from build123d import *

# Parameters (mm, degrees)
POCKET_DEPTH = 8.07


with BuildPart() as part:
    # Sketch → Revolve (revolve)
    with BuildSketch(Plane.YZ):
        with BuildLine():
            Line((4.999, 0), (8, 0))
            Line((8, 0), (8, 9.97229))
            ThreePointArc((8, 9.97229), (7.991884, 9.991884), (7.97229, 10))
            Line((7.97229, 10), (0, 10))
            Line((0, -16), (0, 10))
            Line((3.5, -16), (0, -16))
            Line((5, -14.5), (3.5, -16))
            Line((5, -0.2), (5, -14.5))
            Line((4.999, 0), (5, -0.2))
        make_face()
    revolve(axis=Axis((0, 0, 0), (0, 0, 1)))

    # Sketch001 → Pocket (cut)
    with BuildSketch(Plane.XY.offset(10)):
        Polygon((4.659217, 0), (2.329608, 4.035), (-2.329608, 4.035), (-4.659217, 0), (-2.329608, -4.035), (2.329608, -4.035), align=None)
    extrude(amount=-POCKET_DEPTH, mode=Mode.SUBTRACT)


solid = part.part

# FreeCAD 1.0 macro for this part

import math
import FreeCAD as App
import Part
import Sketcher
Q = App.Units.Quantity

doc = App.newDocument("Part")
body = doc.addObject("PartDesign::Body", "Body")

# Sketch on YZ plane
sketch1 = body.newObject("Sketcher::SketchObject", "Sketch")
sketch1.AttachmentSupport = (doc.getObject("YZ_Plane"), [""])
sketch1.MapMode = "FlatFace"
sketch1.addGeometry(Part.LineSegment(App.Vector(4.999, 0, 0), App.Vector(8, 0, 0)), False)
sketch1.addGeometry(Part.LineSegment(App.Vector(8, 0, 0), App.Vector(8, 9.972, 0)), False)
sketch1.addGeometry(Part.ArcOfCircle(Part.Circle(App.Vector(7.972, 9.972, 0), App.Vector(0, 0, 1), 0.028), math.radians(0), math.radians(90)), False)
sketch1.addGeometry(Part.LineSegment(App.Vector(7.972, 10, 0), App.Vector(0, 10, 0)), False)
sketch1.addGeometry(Part.LineSegment(App.Vector(0, 10, 0), App.Vector(0, -16, 0)), False)
sketch1.addGeometry(Part.LineSegment(App.Vector(0, -16, 0), App.Vector(3.5, -16, 0)), False)
sketch1.addGeometry(Part.LineSegment(App.Vector(3.5, -16, 0), App.Vector(5, -14.5, 0)), False)
sketch1.addGeometry(Part.LineSegment(App.Vector(5, -14.5, 0), App.Vector(5, -0.2, 0)), False)
sketch1.addGeometry(Part.LineSegment(App.Vector(5, -0.2, 0), App.Vector(4.999, 0, 0)), False)
sketch1.addConstraint(Sketcher.Constraint("Coincident", 0, 2, 1, 1))
sketch1.addConstraint(Sketcher.Constraint("Coincident", 1, 2, 2, 1))
sketch1.addConstraint(Sketcher.Constraint("Coincident", 2, 2, 3, 1))
sketch1.addConstraint(Sketcher.Constraint("Coincident", 3, 2, 4, 1))
sketch1.addConstraint(Sketcher.Constraint("Coincident", 4, 2, 5, 1))
sketch1.addConstraint(Sketcher.Constraint("Coincident", 5, 2, 6, 1))
sketch1.addConstraint(Sketcher.Constraint("Coincident", 6, 2, 7, 1))
sketch1.addConstraint(Sketcher.Constraint("Coincident", 7, 2, 8, 1))
sketch1.addConstraint(Sketcher.Constraint("Coincident", 8, 2, 0, 1))
sketch1.addConstraint(Sketcher.Constraint("Horizontal", 0))
sketch1.addConstraint(Sketcher.Constraint("Vertical", 1))
sketch1.addConstraint(Sketcher.Constraint("Horizontal", 3))
sketch1.addConstraint(Sketcher.Constraint("Vertical", 4))
sketch1.addConstraint(Sketcher.Constraint("Horizontal", 5))
sketch1.addConstraint(Sketcher.Constraint("Vertical", 7))
sketch1.addConstraint(Sketcher.Constraint("PointOnObject", 0, 2, -1))
sketch1.addConstraint(Sketcher.Constraint("PointOnObject", 3, 2, -2))
sketch1.addConstraint(Sketcher.Constraint("Horizontal", 2, 3, 1, 2))
sketch1.addConstraint(Sketcher.Constraint("DistanceY", 4, 2, 4, 1, 26.0))
sketch1.addConstraint(Sketcher.Constraint("Angle", 6, Q("45 deg")))
sketch1.addConstraint(Sketcher.Constraint("DistanceX", 5, 1, 5, 2, 3.5))
sketch1.addConstraint(Sketcher.Constraint("DistanceY", 7, 1, 7, 2, 14.3))
sketch1.addConstraint(Sketcher.Constraint("DistanceX", -1, 1, 0, 2, 8.0))
sketch1.addConstraint(Sketcher.Constraint("DistanceY", -1, 1, 2, 2, 10.0))
sketch1.addConstraint(Sketcher.Constraint("DistanceX", -1, 1, 6, 2, 5.0))
sketch1.addConstraint(Sketcher.Constraint("DistanceX", 0, 1, 0, 2, 3.001))
sketch1.addConstraint(Sketcher.Constraint("Radius", 2, 0.02771))
sketch1.addConstraint(Sketcher.Constraint("DistanceX", 3, 2, 3, 1, 7.97229))
revolution = body.newObject("PartDesign::Revolution", "Revolution")
revolution.Profile = sketch1
revolution.ReferenceAxis = (sketch1, ["V_Axis"])
revolution.Angle = 360

# Sketch on XY plane
sketch2 = body.newObject("Sketcher::SketchObject", "Sketch001")
sketch2.AttachmentSupport = (doc.getObject("XY_Plane"), [""])
sketch2.MapMode = "FlatFace"
sketch2.AttachmentOffset = App.Placement(App.Vector(0, 0, 10), App.Rotation())
sketch2.addGeometry(Part.LineSegment(App.Vector(4.7, 0, 0), App.Vector(2.3, 4, 0)), False)
sketch2.addGeometry(Part.LineSegment(App.Vector(2.3, 4, 0), App.Vector(-2.3, 4, 0)), False)
sketch2.addGeometry(Part.LineSegment(App.Vector(-2.3, 4, 0), App.Vector(-4.7, 0, 0)), False)
sketch2.addGeometry(Part.LineSegment(App.Vector(-4.7, 0, 0), App.Vector(-2.3, -4, 0)), False)
sketch2.addGeometry(Part.LineSegment(App.Vector(-2.3, -4, 0), App.Vector(2.3, -4, 0)), False)
sketch2.addGeometry(Part.LineSegment(App.Vector(2.3, -4, 0), App.Vector(4.7, 0, 0)), False)
sketch2.addConstraint(Sketcher.Constraint("Coincident", 0, 2, 1, 1))
sketch2.addConstraint(Sketcher.Constraint("Coincident", 1, 2, 2, 1))
sketch2.addConstraint(Sketcher.Constraint("Coincident", 2, 2, 3, 1))
sketch2.addConstraint(Sketcher.Constraint("Coincident", 3, 2, 4, 1))
sketch2.addConstraint(Sketcher.Constraint("Coincident", 4, 2, 5, 1))
sketch2.addConstraint(Sketcher.Constraint("Coincident", 5, 2, 0, 1))
sketch2.addConstraint(Sketcher.Constraint("Horizontal", 1))
sketch2.addConstraint(Sketcher.Constraint("Horizontal", 4))
sketch2.addConstraint(Sketcher.Constraint("Symmetric", 0, 2, 3, 2, -1, 1))
sketch2.addConstraint(Sketcher.Constraint("Symmetric", 2, 2, 5, 2, -1, 1))
sketch2.addConstraint(Sketcher.Constraint("PointOnObject", 2, 2, -1))
sketch2.addConstraint(Sketcher.Constraint("Parallel", 2, 5))
sketch2.addConstraint(Sketcher.Constraint("Vertical", 1, 2, 3, 2))
sketch2.addConstraint(Sketcher.Constraint("Angle", 0, Q("120.000007 deg")))
sketch2.addConstraint(Sketcher.Constraint("DistanceY", 3, 2, 1, 2, 8.07))
sketch2.addConstraint(Sketcher.Constraint("DistanceX", 1, 2, 1, 1, 4.659216))
pocket1 = body.newObject("PartDesign::Pocket", "Pocket")
pocket1.Profile = sketch2
pocket1.Length = 8.07

doc.recompute()
